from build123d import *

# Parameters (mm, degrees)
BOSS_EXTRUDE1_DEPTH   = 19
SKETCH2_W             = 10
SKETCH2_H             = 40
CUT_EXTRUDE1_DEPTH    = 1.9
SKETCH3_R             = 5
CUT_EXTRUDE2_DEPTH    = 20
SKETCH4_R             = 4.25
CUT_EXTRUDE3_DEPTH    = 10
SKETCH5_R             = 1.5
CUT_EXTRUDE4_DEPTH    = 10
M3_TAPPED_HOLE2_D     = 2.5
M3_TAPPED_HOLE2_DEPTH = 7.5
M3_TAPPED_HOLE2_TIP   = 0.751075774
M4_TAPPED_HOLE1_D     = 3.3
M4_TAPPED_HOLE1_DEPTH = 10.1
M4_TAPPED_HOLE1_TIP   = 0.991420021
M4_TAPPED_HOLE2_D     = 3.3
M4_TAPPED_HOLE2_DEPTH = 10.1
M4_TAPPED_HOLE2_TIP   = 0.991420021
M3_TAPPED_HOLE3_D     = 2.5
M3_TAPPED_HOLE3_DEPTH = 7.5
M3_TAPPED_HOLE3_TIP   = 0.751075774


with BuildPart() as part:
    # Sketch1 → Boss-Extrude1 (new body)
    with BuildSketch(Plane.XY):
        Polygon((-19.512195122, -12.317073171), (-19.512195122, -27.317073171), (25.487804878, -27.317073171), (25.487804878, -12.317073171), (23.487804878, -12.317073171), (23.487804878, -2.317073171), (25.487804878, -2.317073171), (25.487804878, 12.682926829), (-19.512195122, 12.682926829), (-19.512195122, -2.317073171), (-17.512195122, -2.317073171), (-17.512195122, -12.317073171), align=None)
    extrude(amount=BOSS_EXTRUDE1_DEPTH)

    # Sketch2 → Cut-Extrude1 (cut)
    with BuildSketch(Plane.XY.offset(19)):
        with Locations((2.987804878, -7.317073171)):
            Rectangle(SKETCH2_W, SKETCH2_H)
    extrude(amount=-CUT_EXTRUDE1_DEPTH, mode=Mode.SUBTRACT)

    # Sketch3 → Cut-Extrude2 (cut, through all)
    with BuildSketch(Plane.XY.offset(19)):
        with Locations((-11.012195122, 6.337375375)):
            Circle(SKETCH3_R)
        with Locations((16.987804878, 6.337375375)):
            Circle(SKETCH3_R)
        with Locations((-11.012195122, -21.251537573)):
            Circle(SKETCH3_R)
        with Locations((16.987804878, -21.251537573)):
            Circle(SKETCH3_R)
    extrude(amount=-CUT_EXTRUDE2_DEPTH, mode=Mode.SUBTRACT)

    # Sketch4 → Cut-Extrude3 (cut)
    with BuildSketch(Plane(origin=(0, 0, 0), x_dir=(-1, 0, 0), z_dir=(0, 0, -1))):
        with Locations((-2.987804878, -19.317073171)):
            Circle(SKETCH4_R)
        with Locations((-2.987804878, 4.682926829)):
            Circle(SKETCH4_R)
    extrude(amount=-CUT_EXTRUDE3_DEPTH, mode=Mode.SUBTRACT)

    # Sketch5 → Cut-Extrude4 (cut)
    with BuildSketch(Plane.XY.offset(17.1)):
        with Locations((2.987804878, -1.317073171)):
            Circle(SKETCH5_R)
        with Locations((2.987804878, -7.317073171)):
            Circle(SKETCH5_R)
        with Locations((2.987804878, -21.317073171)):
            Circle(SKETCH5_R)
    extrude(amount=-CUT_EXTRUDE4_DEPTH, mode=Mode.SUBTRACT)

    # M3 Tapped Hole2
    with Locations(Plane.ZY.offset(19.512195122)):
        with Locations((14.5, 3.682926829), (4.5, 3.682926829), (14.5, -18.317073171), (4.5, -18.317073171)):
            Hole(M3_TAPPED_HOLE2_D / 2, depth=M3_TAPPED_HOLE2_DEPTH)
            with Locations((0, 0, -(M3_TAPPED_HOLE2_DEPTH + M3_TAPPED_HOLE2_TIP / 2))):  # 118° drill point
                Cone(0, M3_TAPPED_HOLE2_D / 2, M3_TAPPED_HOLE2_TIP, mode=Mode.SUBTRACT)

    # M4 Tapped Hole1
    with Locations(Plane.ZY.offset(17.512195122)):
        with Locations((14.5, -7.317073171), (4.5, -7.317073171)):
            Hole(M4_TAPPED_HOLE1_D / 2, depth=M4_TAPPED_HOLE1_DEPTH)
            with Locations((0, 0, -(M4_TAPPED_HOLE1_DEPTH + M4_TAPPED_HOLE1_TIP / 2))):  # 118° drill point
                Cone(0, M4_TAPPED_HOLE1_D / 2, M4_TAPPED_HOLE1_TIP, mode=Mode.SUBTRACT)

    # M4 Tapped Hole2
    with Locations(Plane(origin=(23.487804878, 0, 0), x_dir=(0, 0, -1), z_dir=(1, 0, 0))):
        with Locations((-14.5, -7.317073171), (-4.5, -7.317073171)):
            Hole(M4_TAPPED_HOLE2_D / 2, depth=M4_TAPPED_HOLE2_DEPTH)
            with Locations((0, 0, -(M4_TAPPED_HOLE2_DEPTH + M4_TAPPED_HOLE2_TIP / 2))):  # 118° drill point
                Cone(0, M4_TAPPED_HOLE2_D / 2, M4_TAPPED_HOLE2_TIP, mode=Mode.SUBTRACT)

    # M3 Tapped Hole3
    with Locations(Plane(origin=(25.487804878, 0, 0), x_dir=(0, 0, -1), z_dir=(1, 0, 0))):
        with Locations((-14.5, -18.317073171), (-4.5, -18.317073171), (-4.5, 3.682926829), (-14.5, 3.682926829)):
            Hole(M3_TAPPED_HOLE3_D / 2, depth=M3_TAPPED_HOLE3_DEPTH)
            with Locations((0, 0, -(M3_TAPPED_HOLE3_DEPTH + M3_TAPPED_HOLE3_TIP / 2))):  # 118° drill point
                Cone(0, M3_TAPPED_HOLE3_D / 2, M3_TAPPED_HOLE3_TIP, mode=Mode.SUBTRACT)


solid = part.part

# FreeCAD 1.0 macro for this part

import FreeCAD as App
import Part
import Sketcher
from FreeCAD import Vector

doc = App.newDocument("Part")
body = doc.addObject("PartDesign::Body", "Body")

sketch1 = doc.addObject("Sketcher::SketchObject", "Sketch")
body.addObject(sketch1)
sketch1.AttachmentSupport = (doc.XY_Plane, [""])
sketch1.MapMode = "FlatFace"
sketch1.addGeometry([
    Part.LineSegment(Vector(-19.5, -12.3, 0), Vector(-19.5, -27.3, 0)),
    Part.LineSegment(Vector(-19.5, -27.3, 0), Vector(25.5, -27.3, 0)),
    Part.LineSegment(Vector(25.5, -27.3, 0), Vector(25.5, -12.3, 0)),
    Part.LineSegment(Vector(25.5, -12.3, 0), Vector(23.5, -12.3, 0)),
    Part.LineSegment(Vector(23.5, -12.3, 0), Vector(23.5, -2.3, 0)),
    Part.LineSegment(Vector(23.5, -2.3, 0), Vector(25.5, -2.3, 0)),
    Part.LineSegment(Vector(25.5, -2.3, 0), Vector(25.5, 12.7, 0)),
    Part.LineSegment(Vector(25.5, 12.7, 0), Vector(-19.5, 12.7, 0)),
    Part.LineSegment(Vector(-19.5, 12.7, 0), Vector(-19.5, -2.3, 0)),
    Part.LineSegment(Vector(-19.5, -2.3, 0), Vector(-17.5, -2.3, 0)),
    Part.LineSegment(Vector(-17.5, -2.3, 0), Vector(-17.5, -12.3, 0)),
    Part.LineSegment(Vector(-17.5, -12.3, 0), Vector(-19.5, -12.3, 0)),
], False)
sketch1.addConstraint([
    Sketcher.Constraint("Coincident", 0, 2, 1, 1),
    Sketcher.Constraint("Coincident", 1, 2, 2, 1),
    Sketcher.Constraint("Coincident", 2, 2, 3, 1),
    Sketcher.Constraint("Coincident", 3, 2, 4, 1),
    Sketcher.Constraint("Coincident", 4, 2, 5, 1),
    Sketcher.Constraint("Coincident", 5, 2, 6, 1),
    Sketcher.Constraint("Coincident", 6, 2, 7, 1),
    Sketcher.Constraint("Coincident", 7, 2, 8, 1),
    Sketcher.Constraint("Coincident", 8, 2, 9, 1),
    Sketcher.Constraint("Coincident", 9, 2, 10, 1),
    Sketcher.Constraint("Coincident", 10, 2, 11, 1),
    Sketcher.Constraint("Coincident", 11, 2, 0, 1),
    Sketcher.Constraint("Vertical", 0),
    Sketcher.Constraint("Horizontal", 1),
    Sketcher.Constraint("Vertical", 2),
    Sketcher.Constraint("Horizontal", 3),
    Sketcher.Constraint("Vertical", 4),
    Sketcher.Constraint("Horizontal", 5),
    Sketcher.Constraint("Vertical", 6),
    Sketcher.Constraint("Horizontal", 7),
    Sketcher.Constraint("Vertical", 8),
    Sketcher.Constraint("Horizontal", 9),
    Sketcher.Constraint("Vertical", 10),
    Sketcher.Constraint("Horizontal", 11),
    Sketcher.Constraint("Horizontal", 5, 2, 8, 2),
    Sketcher.Constraint("Horizontal", 3, 2, 10, 2),
    Sketcher.Constraint("Vertical", 2, 2, 5, 2),
    Sketcher.Constraint("Vertical", 0, 2, 7, 2),
    Sketcher.Constraint("Equal", 5, 9),
    Sketcher.Constraint("Equal", 2, 6),
    Sketcher.Constraint("DistanceX", 1, 1, 1, 2, 45.0),
    Sketcher.Constraint("DistanceX", 3, 2, 3, 1, 2.0),
    Sketcher.Constraint("DistanceY", 0, 2, 0, 1, 15.0),
    Sketcher.Constraint("DistanceY", 4, 1, 4, 2, 10.0),
    Sketcher.Constraint("DistanceX", 0, 2, -1, 1, 19.512195),
    Sketcher.Constraint("DistanceY", 0, 2, -1, 1, 27.317073),
])
pad1 = doc.addObject("PartDesign::Pad", "Pad")
body.addObject(pad1)
pad1.Profile = sketch1
pad1.Length = 19

sketch2 = doc.addObject("Sketcher::SketchObject", "Sketch001")
body.addObject(sketch2)
sketch2.AttachmentSupport = (doc.XY_Plane, [""])
sketch2.MapMode = "FlatFace"
sketch2.AttachmentOffset = App.Placement(Vector(0, 0, 19), App.Rotation())
sketch2.addGeometry([
    Part.LineSegment(Vector(-2, 13, 0), Vector(-2, -27, 0)),
    Part.LineSegment(Vector(-2, -27, 0), Vector(8, -27, 0)),
    Part.LineSegment(Vector(8, -27, 0), Vector(8, 13, 0)),
    Part.LineSegment(Vector(8, 13, 0), Vector(-2, 13, 0)),
], False)
sketch2.addConstraint([
    Sketcher.Constraint("Coincident", 0, 2, 1, 1),
    Sketcher.Constraint("Coincident", 1, 2, 2, 1),
    Sketcher.Constraint("Coincident", 2, 2, 3, 1),
    Sketcher.Constraint("Coincident", 3, 2, 0, 1),
    Sketcher.Constraint("Vertical", 0),
    Sketcher.Constraint("Horizontal", 1),
    Sketcher.Constraint("Vertical", 2),
    Sketcher.Constraint("Horizontal", 3),
    Sketcher.Constraint("DistanceX", 1, 1, 1, 2, 10.0),
    Sketcher.Constraint("DistanceY", 0, 2, 0, 1, 40.0),
    Sketcher.Constraint("DistanceX", 0, 2, -1, 1, 2.012195),
    Sketcher.Constraint("DistanceY", 0, 2, -1, 1, 27.317073),
])
pocket1 = doc.addObject("PartDesign::Pocket", "Pocket")
body.addObject(pocket1)
pocket1.Profile = sketch2
pocket1.Length = 1.9

sketch3 = doc.addObject("Sketcher::SketchObject", "Sketch002")
body.addObject(sketch3)
sketch3.AttachmentSupport = (doc.XY_Plane, [""])
sketch3.MapMode = "FlatFace"
sketch3.AttachmentOffset = App.Placement(Vector(0, 0, 19), App.Rotation())
sketch3.addGeometry([
    Part.Circle(Vector(-11, 6, 0), Vector(0, 0, 1), 5),
    Part.Circle(Vector(17, 6, 0), Vector(0, 0, 1), 5),
    Part.Circle(Vector(-11, -21, 0), Vector(0, 0, 1), 5),
    Part.Circle(Vector(17, -21, 0), Vector(0, 0, 1), 5),
], False)
sketch3.addConstraint([
    Sketcher.Constraint("Equal", 0, 1),
    Sketcher.Constraint("Equal", 1, 2),
    Sketcher.Constraint("Equal", 2, 3),
    Sketcher.Constraint("Horizontal", 0, 3, 1, 3),
    Sketcher.Constraint("Horizontal", 2, 3, 3, 3),
    Sketcher.Constraint("Vertical", 0, 3, 2, 3),
    Sketcher.Constraint("Vertical", 1, 3, 3, 3),
    Sketcher.Constraint("Diameter", 0, 10.0),
    Sketcher.Constraint("DistanceX", 0, 3, 1, 3, 28.0),
    Sketcher.Constraint("DistanceX", 0, 3, -1, 1, 11.012195),
    Sketcher.Constraint("DistanceY", -1, 1, 0, 3, 6.337375),
    Sketcher.Constraint("DistanceY", 2, 3, -1, 1, 21.251538),
])
pocket2 = doc.addObject("PartDesign::Pocket", "Pocket001")
body.addObject(pocket2)
pocket2.Profile = sketch3
pocket2.Type = "ThroughAll"

sketch4 = doc.addObject("Sketcher::SketchObject", "Sketch003")
body.addObject(sketch4)
sketch4.AttachmentSupport = (doc.XY_Plane, [""])
sketch4.MapMode = "FlatFace"
sketch4.addGeometry([
    Part.Circle(Vector(3, -19.3, 0), Vector(0, 0, 1), 4.2),
    Part.Circle(Vector(3, 4.7, 0), Vector(0, 0, 1), 4.2),
], False)
sketch4.addConstraint([
    Sketcher.Constraint("Equal", 0, 1),
    Sketcher.Constraint("Vertical", 0, 3, 1, 3),
    Sketcher.Constraint("Diameter", 0, 8.5),
    Sketcher.Constraint("DistanceY", 0, 3, 1, 3, 24.0),
    Sketcher.Constraint("DistanceX", -1, 1, 0, 3, 2.987805),
    Sketcher.Constraint("DistanceY", 0, 3, -1, 1, 19.317073),
])
pocket3 = doc.addObject("PartDesign::Pocket", "Pocket002")
body.addObject(pocket3)
pocket3.Profile = sketch4
pocket3.Length = 10
pocket3.Reversed = True

sketch5 = doc.addObject("Sketcher::SketchObject", "Sketch004")
body.addObject(sketch5)
sketch5.AttachmentSupport = (doc.XY_Plane, [""])
sketch5.MapMode = "FlatFace"
sketch5.AttachmentOffset = App.Placement(Vector(0, 0, 17.1), App.Rotation())
sketch5.addGeometry([
    Part.Circle(Vector(3, -1.3, 0), Vector(0, 0, 1), 1.5),
    Part.Circle(Vector(3, -7.3, 0), Vector(0, 0, 1), 1.5),
    Part.Circle(Vector(3, -21.3, 0), Vector(0, 0, 1), 1.5),
], False)
sketch5.addConstraint([
    Sketcher.Constraint("Equal", 0, 1),
    Sketcher.Constraint("Equal", 1, 2),
    Sketcher.Constraint("Vertical", 0, 3, 1, 3),
    Sketcher.Constraint("Vertical", 1, 3, 2, 3),
    Sketcher.Constraint("Diameter", 0, 3.0),
    Sketcher.Constraint("DistanceY", 1, 3, 0, 3, 6.0),
    Sketcher.Constraint("DistanceY", 2, 3, 1, 3, 14.0),
    Sketcher.Constraint("DistanceX", -1, 1, 0, 3, 2.987805),
    Sketcher.Constraint("DistanceY", 0, 3, -1, 1, 1.317073),
])
pocket4 = doc.addObject("PartDesign::Pocket", "Pocket003")
body.addObject(pocket4)
pocket4.Profile = sketch5
pocket4.Length = 10

sketch6 = doc.addObject("Sketcher::SketchObject", "Sketch005")
body.addObject(sketch6)
sketch6.AttachmentSupport = (doc.YZ_Plane, [""])
sketch6.MapMode = "FlatFace"
sketch6.AttachmentOffset = App.Placement(Vector(0, 0, -19.512195), App.Rotation())
sketch6.addGeometry([
    Part.Circle(Vector(3.7, 14.5, 0), Vector(0, 0, 1), 1.2),
    Part.Circle(Vector(3.7, 4.5, 0), Vector(0, 0, 1), 1.2),
    Part.Circle(Vector(-18.3, 14.5, 0), Vector(0, 0, 1), 1.2),
    Part.Circle(Vector(-18.3, 4.5, 0), Vector(0, 0, 1), 1.2),
], False)
sketch6.addConstraint([
    Sketcher.Constraint("Equal", 0, 1),
    Sketcher.Constraint("Equal", 1, 2),
    Sketcher.Constraint("Equal", 2, 3),
    Sketcher.Constraint("Horizontal", 0, 3, 2, 3),
    Sketcher.Constraint("Horizontal", 1, 3, 3, 3),
    Sketcher.Constraint("Vertical", 0, 3, 1, 3),
    Sketcher.Constraint("Vertical", 2, 3, 3, 3),
    Sketcher.Constraint("Diameter", 0, 2.5),
    Sketcher.Constraint("DistanceY", 1, 3, 0, 3, 10.0),
    Sketcher.Constraint("DistanceX", 2, 3, 0, 3, 22.0),
    Sketcher.Constraint("DistanceY", -1, 1, 0, 3, 14.5),
    Sketcher.Constraint("DistanceX", -1, 1, 0, 3, 3.682927),
])
doc.recompute()
hole = doc.addObject("PartDesign::Hole", "Hole")
body.addObject(hole)
hole.Profile = sketch6
hole.ThreadType = "None"
hole.Diameter = 2.5
hole.DepthType = "Dimension"
hole.Depth = 7.5
hole.DrillPoint = "Angled"
hole.DrillPointAngle = 118
hole.Reversed = True

sketch7 = doc.addObject("Sketcher::SketchObject", "Sketch006")
body.addObject(sketch7)
sketch7.AttachmentSupport = (doc.YZ_Plane, [""])
sketch7.MapMode = "FlatFace"
sketch7.AttachmentOffset = App.Placement(Vector(0, 0, -17.512195), App.Rotation())
sketch7.addGeometry([
    Part.Circle(Vector(-7.3, 14.5, 0), Vector(0, 0, 1), 1.6),
    Part.Circle(Vector(-7.3, 4.5, 0), Vector(0, 0, 1), 1.6),
], False)
sketch7.addConstraint([
    Sketcher.Constraint("Equal", 0, 1),
    Sketcher.Constraint("Vertical", 0, 3, 1, 3),
    Sketcher.Constraint("Diameter", 0, 3.3),
    Sketcher.Constraint("DistanceY", 1, 3, 0, 3, 10.0),
    Sketcher.Constraint("DistanceY", -1, 1, 0, 3, 14.5),
    Sketcher.Constraint("DistanceX", 0, 3, -1, 1, 7.317073),
])
doc.recompute()
hole2 = doc.addObject("PartDesign::Hole", "Hole001")
body.addObject(hole2)
hole2.Profile = sketch7
hole2.ThreadType = "None"
hole2.Diameter = 3.3
hole2.DepthType = "Dimension"
hole2.Depth = 10.1
hole2.DrillPoint = "Angled"
hole2.DrillPointAngle = 118
hole2.Reversed = True

sketch8 = doc.addObject("Sketcher::SketchObject", "Sketch007")
body.addObject(sketch8)
sketch8.AttachmentSupport = (doc.YZ_Plane, [""])
sketch8.MapMode = "FlatFace"
sketch8.AttachmentOffset = App.Placement(Vector(0, 0, 23.487805), App.Rotation())
sketch8.addGeometry([
    Part.Circle(Vector(-7.3, 14.5, 0), Vector(0, 0, 1), 1.6),
    Part.Circle(Vector(-7.3, 4.5, 0), Vector(0, 0, 1), 1.6),
], False)
sketch8.addConstraint([
    Sketcher.Constraint("Equal", 0, 1),
    Sketcher.Constraint("Vertical", 0, 3, 1, 3),
    Sketcher.Constraint("Diameter", 0, 3.3),
    Sketcher.Constraint("DistanceY", 1, 3, 0, 3, 10.0),
    Sketcher.Constraint("DistanceY", -1, 1, 0, 3, 14.5),
    Sketcher.Constraint("DistanceX", 0, 3, -1, 1, 7.317073),
])
doc.recompute()
hole3 = doc.addObject("PartDesign::Hole", "Hole002")
body.addObject(hole3)
hole3.Profile = sketch8
hole3.ThreadType = "None"
hole3.Diameter = 3.3
hole3.DepthType = "Dimension"
hole3.Depth = 10.1
hole3.DrillPoint = "Angled"
hole3.DrillPointAngle = 118

sketch9 = doc.addObject("Sketcher::SketchObject", "Sketch008")
body.addObject(sketch9)
sketch9.AttachmentSupport = (doc.YZ_Plane, [""])
sketch9.MapMode = "FlatFace"
sketch9.AttachmentOffset = App.Placement(Vector(0, 0, 25.487805), App.Rotation())
sketch9.addGeometry([
    Part.Circle(Vector(-18.3, 14.5, 0), Vector(0, 0, 1), 1.2),
    Part.Circle(Vector(-18.3, 4.5, 0), Vector(0, 0, 1), 1.2),
    Part.Circle(Vector(3.7, 4.5, 0), Vector(0, 0, 1), 1.2),
    Part.Circle(Vector(3.7, 14.5, 0), Vector(0, 0, 1), 1.2),
], False)
sketch9.addConstraint([
    Sketcher.Constraint("Equal", 0, 1),
    Sketcher.Constraint("Equal", 1, 2),
    Sketcher.Constraint("Equal", 2, 3),
    Sketcher.Constraint("Horizontal", 1, 3, 2, 3),
    Sketcher.Constraint("Horizontal", 0, 3, 3, 3),
    Sketcher.Constraint("Vertical", 0, 3, 1, 3),
    Sketcher.Constraint("Vertical", 2, 3, 3, 3),
    Sketcher.Constraint("Diameter", 0, 2.5),
    Sketcher.Constraint("DistanceY", 1, 3, 0, 3, 10.0),
    Sketcher.Constraint("DistanceX", 1, 3, 2, 3, 22.0),
    Sketcher.Constraint("DistanceY", -1, 1, 0, 3, 14.5),
    Sketcher.Constraint("DistanceX", 0, 3, -1, 1, 18.317073),
])
doc.recompute()
hole4 = doc.addObject("PartDesign::Hole", "Hole003")
body.addObject(hole4)
hole4.Profile = sketch9
hole4.ThreadType = "None"
hole4.Diameter = 2.5
hole4.DepthType = "Dimension"
hole4.Depth = 7.5
hole4.DrillPoint = "Angled"
hole4.DrillPointAngle = 118

doc.recompute()
